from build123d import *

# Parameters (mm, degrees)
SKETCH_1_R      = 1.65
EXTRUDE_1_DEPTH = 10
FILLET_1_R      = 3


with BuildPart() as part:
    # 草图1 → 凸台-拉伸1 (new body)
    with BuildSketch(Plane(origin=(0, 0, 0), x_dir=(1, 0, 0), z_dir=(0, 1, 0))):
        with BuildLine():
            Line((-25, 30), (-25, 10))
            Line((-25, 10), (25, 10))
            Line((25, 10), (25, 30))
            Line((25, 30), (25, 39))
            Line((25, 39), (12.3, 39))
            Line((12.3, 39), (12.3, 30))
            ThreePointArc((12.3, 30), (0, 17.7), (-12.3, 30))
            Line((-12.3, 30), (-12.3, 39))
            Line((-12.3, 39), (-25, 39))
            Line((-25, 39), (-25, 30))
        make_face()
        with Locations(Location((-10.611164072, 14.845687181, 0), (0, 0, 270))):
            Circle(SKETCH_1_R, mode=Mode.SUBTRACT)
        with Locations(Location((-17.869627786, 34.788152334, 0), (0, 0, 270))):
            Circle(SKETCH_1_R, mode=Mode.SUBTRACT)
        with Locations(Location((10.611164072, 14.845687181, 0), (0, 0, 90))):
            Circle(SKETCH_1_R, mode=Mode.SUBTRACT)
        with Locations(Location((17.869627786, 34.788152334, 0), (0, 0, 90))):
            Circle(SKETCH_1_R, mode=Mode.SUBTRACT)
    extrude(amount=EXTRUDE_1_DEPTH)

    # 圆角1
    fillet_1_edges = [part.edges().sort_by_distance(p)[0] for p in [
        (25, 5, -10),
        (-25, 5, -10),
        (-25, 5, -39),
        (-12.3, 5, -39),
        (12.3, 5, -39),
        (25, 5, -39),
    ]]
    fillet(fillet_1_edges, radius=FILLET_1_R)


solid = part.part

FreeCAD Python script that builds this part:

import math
import FreeCAD as App
import Part
import Sketcher
from FreeCAD import Vector
Q = App.Units.Quantity


def edges_at(feature, points):
    """Names of the edges that pass closest to the given points."""
    edges = feature.Shape.Edges
    near = lambda p: min(range(len(edges)), key=lambda i: edges[i].distToShape(Part.Vertex(*p))[0])
    return sorted({f"Edge{near(p) + 1}" for p in points})

doc = App.newDocument("Part")
body = doc.addObject("PartDesign::Body", "Body")

sketch1 = body.newObject("Sketcher::SketchObject", "Sketch")
sketch1.AttachmentSupport = (doc.getObject("XZ_Plane"), [""])
sketch1.MapMode = "FlatFace"
sketch1.addGeometry(Part.LineSegment(Vector(-25, -10, 0), Vector(25, -10, 0)), False)
sketch1.addGeometry(Part.LineSegment(Vector(25, -10, 0), Vector(25, -39, 0)), False)
sketch1.addGeometry(Part.LineSegment(Vector(25, -39, 0), Vector(12.3, -39, 0)), False)
sketch1.addGeometry(Part.LineSegment(Vector(12.3, -39, 0), Vector(12.3, -30, 0)), False)
sketch1.addGeometry(Part.ArcOfCircle(Part.Circle(Vector(0, -30, 0), Vector(0, 0, 1), 12.3), math.radians(0), math.radians(180)), False)
sketch1.addGeometry(Part.LineSegment(Vector(-12.3, -30, 0), Vector(-12.3, -39, 0)), False)
sketch1.addGeometry(Part.LineSegment(Vector(-12.3, -39, 0), Vector(-25, -39, 0)), False)
sketch1.addGeometry(Part.LineSegment(Vector(-25, -39, 0), Vector(-25, -10, 0)), False)
sketch1.addGeometry(Part.Circle(Vector(-10.6, -14.8, 0), Vector(0, 0, 1), 1.6), False)
sketch1.addGeometry(Part.Circle(Vector(10.6, -14.8, 0), Vector(0, 0, 1), 1.6), False)
sketch1.addGeometry(Part.Circle(Vector(-17.9, -34.8, 0), Vector(0, 0, 1), 1.6), False)
sketch1.addGeometry(Part.Circle(Vector(17.9, -34.8, 0), Vector(0, 0, 1), 1.6), False)
sketch1.addConstraint(Sketcher.Constraint("Coincident", 0, 2, 1, 1))
sketch1.addConstraint(Sketcher.Constraint("Coincident", 1, 2, 2, 1))
sketch1.addConstraint(Sketcher.Constraint("Coincident", 2, 2, 3, 1))
sketch1.addConstraint(Sketcher.Constraint("Tangent", 3, 2, 4, 1))
sketch1.addConstraint(Sketcher.Constraint("Tangent", 4, 2, 5, 1))
sketch1.addConstraint(Sketcher.Constraint("Coincident", 5, 2, 6, 1))
sketch1.addConstraint(Sketcher.Constraint("Coincident", 6, 2, 7, 1))
sketch1.addConstraint(Sketcher.Constraint("Coincident", 7, 2, 0, 1))
sketch1.addConstraint(Sketcher.Constraint("Horizontal", 0))
sketch1.addConstraint(Sketcher.Constraint("Vertical", 1))
sketch1.addConstraint(Sketcher.Constraint("Horizontal", 2))
sketch1.addConstraint(Sketcher.Constraint("Vertical", 3))
sketch1.addConstraint(Sketcher.Constraint("Vertical", 5))
sketch1.addConstraint(Sketcher.Constraint("Horizontal", 6))
sketch1.addConstraint(Sketcher.Constraint("Vertical", 7))
sketch1.addConstraint(Sketcher.Constraint("Equal", 8, 9))
sketch1.addConstraint(Sketcher.Constraint("Equal", 9, 10))
sketch1.addConstraint(Sketcher.Constraint("Equal", 10, 11))
sketch1.addConstraint(Sketcher.Constraint("Symmetric", 8, 3, 9, 3, -2))
sketch1.addConstraint(Sketcher.Constraint("Symmetric", 10, 3, 11, 3, -2))
sketch1.addConstraint(Sketcher.Constraint("Symmetric", 2, 2, 5, 2, -2))
sketch1.addConstraint(Sketcher.Constraint("Equal", 2, 6))
sketch1.addConstraint(Sketcher.Constraint("Diameter", 8, Q("3.3 mm")))
sketch1.addConstraint(Sketcher.Constraint("Radius", 4, Q("12.3 mm")))
sketch1.addConstraint(Sketcher.Constraint("DistanceX", 0, 1, 0, 2, Q("50 mm")))
sketch1.addConstraint(Sketcher.Constraint("DistanceY", 1, 2, 1, 1, Q("29 mm")))
sketch1.addConstraint(Sketcher.Constraint("DistanceY", 3, 1, 3, 2, Q("9 mm")))
sketch1.addConstraint(Sketcher.Constraint("DistanceY", 4, 3, -1, 1, Q("30 mm")))
sketch1.addConstraint(Sketcher.Constraint("DistanceX", 8, 3, 9, 3, Q("21.222328 mm")))
sketch1.addConstraint(Sketcher.Constraint("DistanceX", 10, 3, 9, 3, Q("28.480792 mm")))
sketch1.addConstraint(Sketcher.Constraint("DistanceY", 8, 3, -1, 1, Q("14.845687 mm")))
sketch1.addConstraint(Sketcher.Constraint("DistanceY", 10, 3, -1, 1, Q("34.788152 mm")))
pad1 = body.newObject("PartDesign::Pad", "Pad")
pad1.Profile = sketch1
pad1.Length = 10
pad1.Reversed = True
doc.recompute()

fillet = body.newObject("PartDesign::Fillet", "Fillet")
fillet.Base = (pad1, edges_at(pad1, [
    (25, 5, -10),
    (-25, 5, -10),
    (-25, 5, -39),
    (-12.3, 5, -39),
    (12.3, 5, -39),
    (25, 5, -39),
]))
fillet.Radius = 3

doc.recompute()
